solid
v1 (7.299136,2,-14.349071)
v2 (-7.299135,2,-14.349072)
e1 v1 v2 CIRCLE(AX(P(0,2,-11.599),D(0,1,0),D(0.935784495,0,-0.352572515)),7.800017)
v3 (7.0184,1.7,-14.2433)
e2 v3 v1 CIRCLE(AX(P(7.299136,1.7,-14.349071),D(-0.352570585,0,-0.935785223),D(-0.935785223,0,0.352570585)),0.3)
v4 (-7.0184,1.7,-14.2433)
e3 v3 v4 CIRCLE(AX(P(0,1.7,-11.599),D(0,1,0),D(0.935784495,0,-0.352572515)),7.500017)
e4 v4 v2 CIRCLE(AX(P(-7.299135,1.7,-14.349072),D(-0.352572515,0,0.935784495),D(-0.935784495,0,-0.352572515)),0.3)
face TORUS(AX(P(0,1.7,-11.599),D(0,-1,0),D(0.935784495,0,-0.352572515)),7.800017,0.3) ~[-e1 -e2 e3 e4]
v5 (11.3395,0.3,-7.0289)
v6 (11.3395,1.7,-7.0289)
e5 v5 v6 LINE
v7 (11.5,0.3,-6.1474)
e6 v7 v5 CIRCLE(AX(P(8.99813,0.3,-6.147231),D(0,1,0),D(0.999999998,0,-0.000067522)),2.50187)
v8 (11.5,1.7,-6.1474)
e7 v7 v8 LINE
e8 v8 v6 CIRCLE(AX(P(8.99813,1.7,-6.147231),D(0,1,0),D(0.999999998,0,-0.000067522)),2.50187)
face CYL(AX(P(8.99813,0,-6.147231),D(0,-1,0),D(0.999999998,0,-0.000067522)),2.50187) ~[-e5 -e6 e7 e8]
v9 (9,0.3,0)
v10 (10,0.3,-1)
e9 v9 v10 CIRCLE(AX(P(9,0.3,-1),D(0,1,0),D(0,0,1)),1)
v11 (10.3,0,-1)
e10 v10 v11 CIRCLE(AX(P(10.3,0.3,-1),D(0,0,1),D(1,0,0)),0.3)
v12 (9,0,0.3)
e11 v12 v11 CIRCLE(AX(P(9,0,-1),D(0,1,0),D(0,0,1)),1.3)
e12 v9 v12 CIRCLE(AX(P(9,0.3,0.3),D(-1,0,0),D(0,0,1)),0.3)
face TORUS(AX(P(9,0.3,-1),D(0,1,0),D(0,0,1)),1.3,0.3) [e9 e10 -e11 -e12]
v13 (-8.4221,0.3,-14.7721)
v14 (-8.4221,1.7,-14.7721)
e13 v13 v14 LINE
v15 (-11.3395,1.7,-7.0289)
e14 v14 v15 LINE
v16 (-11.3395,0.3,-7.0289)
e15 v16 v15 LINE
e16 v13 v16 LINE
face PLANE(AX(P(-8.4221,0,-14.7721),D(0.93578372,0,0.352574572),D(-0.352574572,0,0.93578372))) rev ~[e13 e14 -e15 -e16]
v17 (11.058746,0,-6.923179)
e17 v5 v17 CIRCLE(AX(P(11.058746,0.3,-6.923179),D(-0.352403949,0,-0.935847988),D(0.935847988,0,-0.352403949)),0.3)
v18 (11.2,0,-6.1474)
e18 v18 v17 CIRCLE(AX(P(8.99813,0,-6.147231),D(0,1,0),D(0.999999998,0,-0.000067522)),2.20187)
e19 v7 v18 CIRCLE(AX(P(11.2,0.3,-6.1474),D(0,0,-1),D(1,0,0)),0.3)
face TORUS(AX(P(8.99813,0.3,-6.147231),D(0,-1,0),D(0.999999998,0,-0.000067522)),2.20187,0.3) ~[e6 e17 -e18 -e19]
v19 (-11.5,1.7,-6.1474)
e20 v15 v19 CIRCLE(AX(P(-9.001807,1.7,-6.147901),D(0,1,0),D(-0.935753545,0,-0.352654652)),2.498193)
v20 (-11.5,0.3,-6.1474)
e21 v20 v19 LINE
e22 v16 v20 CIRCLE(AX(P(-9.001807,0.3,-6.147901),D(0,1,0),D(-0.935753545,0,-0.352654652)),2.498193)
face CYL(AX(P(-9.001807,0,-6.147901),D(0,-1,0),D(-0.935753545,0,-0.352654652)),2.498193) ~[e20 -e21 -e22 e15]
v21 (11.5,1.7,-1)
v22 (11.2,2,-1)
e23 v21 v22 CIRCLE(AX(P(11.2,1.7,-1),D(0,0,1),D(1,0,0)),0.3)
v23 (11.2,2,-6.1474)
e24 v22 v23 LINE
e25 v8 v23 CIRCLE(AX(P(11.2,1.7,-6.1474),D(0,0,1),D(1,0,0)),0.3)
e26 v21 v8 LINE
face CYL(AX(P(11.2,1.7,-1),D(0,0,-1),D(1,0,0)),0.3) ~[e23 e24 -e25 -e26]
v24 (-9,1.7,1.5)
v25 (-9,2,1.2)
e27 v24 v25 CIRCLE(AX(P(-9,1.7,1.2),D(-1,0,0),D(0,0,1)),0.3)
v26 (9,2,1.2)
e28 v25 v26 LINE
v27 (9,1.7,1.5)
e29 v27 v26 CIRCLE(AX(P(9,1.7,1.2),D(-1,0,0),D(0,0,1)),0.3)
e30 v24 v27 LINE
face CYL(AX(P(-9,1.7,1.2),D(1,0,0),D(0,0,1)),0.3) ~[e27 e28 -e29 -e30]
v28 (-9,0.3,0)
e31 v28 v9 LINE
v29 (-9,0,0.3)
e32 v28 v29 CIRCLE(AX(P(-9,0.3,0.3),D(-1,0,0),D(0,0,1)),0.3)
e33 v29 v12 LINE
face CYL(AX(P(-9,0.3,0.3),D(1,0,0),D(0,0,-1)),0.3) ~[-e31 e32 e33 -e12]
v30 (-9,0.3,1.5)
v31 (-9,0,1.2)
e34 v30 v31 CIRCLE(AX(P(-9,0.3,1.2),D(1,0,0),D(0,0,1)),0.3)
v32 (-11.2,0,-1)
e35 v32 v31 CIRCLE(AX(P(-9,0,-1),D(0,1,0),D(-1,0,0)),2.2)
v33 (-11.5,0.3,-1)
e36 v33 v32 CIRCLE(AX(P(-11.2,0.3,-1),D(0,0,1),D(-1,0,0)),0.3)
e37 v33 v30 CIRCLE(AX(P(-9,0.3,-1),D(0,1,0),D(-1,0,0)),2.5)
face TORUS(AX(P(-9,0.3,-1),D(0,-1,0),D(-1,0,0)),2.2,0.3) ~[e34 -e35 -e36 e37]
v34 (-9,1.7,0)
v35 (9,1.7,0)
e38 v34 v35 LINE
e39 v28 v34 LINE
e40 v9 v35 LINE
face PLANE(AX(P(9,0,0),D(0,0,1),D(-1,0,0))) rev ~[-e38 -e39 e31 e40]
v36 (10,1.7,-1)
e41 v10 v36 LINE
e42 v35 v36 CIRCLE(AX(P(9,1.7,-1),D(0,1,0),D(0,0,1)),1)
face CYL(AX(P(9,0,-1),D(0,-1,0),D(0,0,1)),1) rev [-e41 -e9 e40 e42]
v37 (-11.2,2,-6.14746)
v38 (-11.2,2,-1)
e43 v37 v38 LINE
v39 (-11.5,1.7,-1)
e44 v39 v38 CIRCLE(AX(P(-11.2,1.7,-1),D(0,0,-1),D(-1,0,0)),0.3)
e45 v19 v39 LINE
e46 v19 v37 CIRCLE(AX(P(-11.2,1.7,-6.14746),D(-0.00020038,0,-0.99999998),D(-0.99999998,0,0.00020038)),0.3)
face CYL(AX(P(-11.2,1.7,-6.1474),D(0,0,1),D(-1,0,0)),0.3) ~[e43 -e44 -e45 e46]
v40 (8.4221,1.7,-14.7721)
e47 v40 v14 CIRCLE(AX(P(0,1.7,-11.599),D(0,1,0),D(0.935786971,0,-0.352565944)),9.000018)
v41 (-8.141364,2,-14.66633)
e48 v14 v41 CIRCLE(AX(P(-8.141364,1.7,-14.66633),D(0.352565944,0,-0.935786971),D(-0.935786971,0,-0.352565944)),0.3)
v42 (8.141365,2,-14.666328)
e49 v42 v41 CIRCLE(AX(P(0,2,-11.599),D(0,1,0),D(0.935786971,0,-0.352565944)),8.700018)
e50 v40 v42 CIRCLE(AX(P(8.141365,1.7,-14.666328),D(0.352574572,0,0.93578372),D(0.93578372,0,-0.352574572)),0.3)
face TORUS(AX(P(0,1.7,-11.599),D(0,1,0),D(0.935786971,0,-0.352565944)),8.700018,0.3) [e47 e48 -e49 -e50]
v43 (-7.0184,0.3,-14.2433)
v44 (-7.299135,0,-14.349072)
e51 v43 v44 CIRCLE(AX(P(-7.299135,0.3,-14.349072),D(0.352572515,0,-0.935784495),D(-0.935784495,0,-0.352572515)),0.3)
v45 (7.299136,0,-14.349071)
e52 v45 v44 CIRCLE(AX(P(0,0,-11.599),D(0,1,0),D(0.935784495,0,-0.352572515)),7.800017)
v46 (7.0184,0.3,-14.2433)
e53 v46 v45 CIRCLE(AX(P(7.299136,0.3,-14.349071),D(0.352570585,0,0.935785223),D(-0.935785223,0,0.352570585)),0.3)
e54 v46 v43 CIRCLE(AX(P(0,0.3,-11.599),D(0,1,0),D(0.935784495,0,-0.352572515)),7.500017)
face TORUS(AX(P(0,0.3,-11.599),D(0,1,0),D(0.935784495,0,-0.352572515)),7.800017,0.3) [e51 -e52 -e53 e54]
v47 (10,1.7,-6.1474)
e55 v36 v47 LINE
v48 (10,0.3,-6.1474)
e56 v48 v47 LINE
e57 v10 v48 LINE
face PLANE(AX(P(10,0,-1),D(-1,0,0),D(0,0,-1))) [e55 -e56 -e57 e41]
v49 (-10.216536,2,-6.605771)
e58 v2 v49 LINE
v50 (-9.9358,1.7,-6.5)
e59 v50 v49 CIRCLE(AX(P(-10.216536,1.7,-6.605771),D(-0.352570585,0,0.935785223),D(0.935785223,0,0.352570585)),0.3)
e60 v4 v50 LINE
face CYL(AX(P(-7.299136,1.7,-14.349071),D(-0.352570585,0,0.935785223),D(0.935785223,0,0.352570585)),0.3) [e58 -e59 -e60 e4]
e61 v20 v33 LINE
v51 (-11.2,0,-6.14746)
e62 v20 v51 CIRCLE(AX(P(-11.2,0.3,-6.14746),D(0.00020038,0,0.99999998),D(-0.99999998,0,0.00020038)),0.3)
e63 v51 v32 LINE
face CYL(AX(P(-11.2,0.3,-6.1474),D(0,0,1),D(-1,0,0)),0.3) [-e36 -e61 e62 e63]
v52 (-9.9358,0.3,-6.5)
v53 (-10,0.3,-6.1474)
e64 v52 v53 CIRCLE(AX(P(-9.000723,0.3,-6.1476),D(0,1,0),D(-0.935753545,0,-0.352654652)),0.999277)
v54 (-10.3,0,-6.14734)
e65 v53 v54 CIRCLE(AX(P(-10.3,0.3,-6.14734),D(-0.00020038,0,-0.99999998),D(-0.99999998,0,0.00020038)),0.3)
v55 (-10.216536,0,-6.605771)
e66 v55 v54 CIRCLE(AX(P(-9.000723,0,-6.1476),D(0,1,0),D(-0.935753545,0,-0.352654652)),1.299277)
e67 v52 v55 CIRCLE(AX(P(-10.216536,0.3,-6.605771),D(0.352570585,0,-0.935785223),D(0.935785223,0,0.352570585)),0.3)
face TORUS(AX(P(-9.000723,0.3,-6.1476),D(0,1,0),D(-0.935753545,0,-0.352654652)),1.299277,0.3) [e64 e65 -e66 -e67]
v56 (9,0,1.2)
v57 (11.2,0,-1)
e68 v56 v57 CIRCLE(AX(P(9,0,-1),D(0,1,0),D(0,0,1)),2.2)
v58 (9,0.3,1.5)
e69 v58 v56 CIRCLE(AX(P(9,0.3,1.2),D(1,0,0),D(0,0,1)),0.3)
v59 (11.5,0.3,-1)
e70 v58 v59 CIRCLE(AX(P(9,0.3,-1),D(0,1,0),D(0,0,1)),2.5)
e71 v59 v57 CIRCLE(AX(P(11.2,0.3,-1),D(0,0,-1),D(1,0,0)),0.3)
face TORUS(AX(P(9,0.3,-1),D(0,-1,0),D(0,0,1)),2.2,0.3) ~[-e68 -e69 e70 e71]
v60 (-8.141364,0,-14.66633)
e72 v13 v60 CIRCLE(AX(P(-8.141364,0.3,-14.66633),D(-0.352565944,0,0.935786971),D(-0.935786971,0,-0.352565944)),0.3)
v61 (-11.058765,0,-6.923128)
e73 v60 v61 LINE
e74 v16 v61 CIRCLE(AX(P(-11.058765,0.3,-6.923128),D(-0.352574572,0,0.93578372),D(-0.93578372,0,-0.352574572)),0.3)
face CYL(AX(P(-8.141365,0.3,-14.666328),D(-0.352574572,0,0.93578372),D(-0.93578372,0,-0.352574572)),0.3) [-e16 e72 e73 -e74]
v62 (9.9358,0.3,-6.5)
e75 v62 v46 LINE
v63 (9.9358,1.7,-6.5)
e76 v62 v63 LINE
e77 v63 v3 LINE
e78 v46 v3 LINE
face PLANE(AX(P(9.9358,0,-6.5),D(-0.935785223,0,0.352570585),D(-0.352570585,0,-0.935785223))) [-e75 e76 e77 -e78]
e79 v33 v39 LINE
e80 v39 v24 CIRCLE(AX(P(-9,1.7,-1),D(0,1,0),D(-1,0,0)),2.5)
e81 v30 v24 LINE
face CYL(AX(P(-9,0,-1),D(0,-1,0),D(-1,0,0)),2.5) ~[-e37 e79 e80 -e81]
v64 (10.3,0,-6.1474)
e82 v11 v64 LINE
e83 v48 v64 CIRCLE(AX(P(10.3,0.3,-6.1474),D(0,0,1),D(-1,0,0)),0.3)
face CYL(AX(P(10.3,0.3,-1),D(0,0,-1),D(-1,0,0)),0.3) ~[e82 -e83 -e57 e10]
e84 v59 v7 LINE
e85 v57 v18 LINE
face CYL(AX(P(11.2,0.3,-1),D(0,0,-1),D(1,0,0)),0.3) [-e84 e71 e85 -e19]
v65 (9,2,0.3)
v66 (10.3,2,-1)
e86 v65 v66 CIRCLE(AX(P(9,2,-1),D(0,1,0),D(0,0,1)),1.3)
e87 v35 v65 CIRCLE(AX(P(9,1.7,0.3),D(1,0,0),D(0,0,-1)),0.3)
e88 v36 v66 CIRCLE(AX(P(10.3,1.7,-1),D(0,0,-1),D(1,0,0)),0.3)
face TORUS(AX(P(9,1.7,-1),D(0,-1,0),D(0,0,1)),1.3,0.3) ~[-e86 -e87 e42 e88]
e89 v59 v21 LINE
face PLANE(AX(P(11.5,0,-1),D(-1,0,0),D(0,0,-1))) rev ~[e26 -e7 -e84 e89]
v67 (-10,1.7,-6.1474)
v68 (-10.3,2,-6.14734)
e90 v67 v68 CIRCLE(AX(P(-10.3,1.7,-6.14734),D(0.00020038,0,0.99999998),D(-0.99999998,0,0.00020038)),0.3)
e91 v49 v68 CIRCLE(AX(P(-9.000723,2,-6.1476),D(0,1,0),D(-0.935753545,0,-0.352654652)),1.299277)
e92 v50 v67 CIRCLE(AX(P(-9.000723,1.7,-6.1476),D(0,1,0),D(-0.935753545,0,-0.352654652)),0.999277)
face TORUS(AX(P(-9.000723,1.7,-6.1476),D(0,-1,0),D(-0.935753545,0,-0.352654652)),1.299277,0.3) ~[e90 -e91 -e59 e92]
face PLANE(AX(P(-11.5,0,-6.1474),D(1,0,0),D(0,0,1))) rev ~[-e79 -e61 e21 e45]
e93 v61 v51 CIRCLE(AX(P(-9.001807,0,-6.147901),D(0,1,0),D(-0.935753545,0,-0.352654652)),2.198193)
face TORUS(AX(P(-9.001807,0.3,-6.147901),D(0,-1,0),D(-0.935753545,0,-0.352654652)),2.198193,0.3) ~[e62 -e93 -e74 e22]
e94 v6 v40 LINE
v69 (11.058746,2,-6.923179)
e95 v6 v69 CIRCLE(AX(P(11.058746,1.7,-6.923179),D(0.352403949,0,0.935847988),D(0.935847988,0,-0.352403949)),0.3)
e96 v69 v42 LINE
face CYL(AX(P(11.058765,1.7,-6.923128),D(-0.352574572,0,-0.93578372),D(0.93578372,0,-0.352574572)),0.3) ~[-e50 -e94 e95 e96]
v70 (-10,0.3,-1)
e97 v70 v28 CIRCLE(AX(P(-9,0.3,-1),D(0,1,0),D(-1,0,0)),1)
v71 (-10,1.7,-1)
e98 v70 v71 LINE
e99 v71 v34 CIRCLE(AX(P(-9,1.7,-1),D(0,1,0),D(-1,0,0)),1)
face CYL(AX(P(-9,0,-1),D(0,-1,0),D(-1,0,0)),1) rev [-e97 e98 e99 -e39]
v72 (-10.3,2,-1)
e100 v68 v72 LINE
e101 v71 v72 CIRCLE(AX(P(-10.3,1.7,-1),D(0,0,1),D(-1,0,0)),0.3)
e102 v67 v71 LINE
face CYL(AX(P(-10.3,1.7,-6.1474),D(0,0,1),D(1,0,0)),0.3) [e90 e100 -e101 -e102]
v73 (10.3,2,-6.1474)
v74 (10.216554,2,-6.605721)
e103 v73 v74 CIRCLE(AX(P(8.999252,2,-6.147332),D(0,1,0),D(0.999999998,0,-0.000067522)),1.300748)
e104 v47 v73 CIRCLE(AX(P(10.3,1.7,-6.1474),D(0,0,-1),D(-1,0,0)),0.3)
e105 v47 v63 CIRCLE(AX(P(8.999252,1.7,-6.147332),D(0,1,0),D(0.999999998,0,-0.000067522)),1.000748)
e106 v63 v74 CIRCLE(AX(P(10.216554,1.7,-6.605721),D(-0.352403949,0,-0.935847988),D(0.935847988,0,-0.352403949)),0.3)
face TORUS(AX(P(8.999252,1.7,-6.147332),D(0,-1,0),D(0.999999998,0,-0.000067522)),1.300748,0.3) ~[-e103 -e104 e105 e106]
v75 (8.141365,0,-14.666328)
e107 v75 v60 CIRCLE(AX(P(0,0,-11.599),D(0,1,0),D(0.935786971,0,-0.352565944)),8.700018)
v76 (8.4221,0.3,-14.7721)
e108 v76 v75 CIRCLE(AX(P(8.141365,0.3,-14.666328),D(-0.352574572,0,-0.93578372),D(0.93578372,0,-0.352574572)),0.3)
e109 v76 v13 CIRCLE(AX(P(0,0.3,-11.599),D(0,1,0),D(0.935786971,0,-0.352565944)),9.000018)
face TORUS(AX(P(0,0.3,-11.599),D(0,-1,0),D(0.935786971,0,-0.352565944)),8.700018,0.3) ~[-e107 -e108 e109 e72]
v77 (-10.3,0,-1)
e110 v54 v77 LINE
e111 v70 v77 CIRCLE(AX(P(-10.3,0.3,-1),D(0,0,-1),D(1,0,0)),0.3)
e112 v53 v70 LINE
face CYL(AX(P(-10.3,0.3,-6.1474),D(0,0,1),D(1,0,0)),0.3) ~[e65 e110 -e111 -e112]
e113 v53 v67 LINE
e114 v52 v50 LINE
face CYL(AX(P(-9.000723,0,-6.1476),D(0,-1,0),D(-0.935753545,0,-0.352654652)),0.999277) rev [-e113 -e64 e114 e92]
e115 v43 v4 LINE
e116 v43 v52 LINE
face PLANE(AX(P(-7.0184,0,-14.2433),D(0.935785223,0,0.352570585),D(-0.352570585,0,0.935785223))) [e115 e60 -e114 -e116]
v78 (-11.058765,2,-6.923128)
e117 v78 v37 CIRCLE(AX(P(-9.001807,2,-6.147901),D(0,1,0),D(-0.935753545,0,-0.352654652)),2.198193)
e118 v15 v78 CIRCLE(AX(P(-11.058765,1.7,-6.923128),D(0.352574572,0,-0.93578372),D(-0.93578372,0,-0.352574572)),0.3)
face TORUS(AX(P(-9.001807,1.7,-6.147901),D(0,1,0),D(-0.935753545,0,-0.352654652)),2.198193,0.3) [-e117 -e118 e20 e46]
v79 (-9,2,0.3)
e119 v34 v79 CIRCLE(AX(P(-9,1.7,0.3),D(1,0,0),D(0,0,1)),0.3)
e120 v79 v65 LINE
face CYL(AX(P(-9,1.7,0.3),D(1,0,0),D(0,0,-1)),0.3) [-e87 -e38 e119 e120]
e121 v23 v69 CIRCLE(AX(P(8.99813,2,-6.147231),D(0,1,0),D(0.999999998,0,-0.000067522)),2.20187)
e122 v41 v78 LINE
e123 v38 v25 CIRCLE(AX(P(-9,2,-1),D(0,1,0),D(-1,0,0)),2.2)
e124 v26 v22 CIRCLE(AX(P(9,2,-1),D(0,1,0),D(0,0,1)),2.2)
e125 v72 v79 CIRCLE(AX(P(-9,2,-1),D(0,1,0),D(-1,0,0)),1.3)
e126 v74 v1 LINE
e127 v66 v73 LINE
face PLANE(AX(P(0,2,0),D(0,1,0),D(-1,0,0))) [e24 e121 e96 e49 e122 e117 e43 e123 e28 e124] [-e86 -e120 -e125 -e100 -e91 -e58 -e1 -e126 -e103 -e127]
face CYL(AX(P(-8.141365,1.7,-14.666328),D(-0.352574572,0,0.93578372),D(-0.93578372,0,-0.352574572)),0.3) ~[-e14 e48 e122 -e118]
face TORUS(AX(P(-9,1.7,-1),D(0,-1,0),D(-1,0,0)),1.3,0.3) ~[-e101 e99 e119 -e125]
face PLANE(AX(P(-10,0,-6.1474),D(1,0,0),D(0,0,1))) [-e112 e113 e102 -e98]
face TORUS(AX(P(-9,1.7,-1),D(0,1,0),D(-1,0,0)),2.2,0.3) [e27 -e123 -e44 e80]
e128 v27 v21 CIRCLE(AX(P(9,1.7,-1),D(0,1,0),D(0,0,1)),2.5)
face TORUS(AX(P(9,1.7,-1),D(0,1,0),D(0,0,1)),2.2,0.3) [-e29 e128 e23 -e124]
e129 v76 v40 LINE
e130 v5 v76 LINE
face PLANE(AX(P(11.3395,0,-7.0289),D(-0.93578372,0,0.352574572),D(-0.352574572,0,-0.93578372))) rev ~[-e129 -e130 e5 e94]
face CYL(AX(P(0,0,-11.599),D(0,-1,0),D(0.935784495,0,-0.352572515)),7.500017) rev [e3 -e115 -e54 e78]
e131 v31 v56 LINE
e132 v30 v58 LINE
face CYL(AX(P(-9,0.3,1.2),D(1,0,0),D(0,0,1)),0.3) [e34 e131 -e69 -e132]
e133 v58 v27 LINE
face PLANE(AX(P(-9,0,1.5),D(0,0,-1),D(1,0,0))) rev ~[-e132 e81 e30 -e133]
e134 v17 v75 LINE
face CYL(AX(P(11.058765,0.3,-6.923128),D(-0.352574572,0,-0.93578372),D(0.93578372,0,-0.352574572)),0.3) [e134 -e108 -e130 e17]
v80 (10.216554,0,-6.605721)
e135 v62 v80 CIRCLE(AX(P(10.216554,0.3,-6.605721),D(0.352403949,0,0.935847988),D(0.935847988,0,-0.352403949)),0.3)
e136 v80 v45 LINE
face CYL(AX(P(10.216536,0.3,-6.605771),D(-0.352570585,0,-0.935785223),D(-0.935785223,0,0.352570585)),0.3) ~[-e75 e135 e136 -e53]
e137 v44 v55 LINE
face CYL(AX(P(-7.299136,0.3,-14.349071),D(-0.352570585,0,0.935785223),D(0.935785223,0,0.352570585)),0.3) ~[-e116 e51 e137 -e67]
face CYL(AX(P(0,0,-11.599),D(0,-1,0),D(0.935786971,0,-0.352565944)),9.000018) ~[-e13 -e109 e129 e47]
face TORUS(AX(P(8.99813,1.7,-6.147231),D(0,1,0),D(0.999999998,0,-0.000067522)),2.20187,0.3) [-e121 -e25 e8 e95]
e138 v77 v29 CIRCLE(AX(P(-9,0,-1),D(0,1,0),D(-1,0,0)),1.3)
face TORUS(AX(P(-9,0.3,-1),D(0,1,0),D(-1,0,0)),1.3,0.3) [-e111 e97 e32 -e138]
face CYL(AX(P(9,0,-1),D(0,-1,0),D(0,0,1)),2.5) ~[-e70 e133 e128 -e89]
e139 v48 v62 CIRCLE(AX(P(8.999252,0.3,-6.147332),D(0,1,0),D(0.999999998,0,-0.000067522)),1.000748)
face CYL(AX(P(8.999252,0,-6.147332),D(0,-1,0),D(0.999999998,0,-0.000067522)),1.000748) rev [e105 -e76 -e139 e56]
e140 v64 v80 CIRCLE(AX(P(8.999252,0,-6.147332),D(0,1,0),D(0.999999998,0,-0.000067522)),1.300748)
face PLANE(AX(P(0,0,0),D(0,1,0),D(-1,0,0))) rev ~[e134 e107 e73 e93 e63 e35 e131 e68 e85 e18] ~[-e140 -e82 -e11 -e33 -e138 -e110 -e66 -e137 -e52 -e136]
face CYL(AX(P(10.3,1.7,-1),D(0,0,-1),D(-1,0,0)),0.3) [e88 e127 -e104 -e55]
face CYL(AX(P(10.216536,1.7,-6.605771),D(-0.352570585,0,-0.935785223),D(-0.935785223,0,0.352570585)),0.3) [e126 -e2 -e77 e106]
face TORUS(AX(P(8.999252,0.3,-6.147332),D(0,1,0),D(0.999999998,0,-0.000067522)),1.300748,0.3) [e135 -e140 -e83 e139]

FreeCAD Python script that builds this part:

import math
import FreeCAD as App
import Part
import Sketcher
Q = App.Units.Quantity


def edges_at(feature, points):
    """Names of the edges that pass closest to the given points."""
    edges = feature.Shape.Edges
    near = lambda p: min(range(len(edges)), key=lambda i: edges[i].distToShape(Part.Vertex(*p))[0])
    return sorted({f"Edge{near(p) + 1}" for p in points})

doc = App.newDocument("Part")
body = doc.addObject("PartDesign::Body", "Body")

sketch1 = body.newObject("Sketcher::SketchObject", "Sketch")
sketch1.AttachmentSupport = (doc.getObject("XZ_Plane"), [""])
sketch1.MapMode = "FlatFace"
sketch1.addGeometry([
    Part.ArcOfCircle(Part.Circle(App.Vector(-9, -1, 0), App.Vector(0, 0, 1), 2.5), math.radians(90), math.radians(180)),
    Part.LineSegment(App.Vector(-9, 1.5, 0), App.Vector(9, 1.5, 0)),
    Part.ArcOfCircle(Part.Circle(App.Vector(9, -1, 0), App.Vector(0, 0, 1), 2.5), math.radians(0), math.radians(90)),
    Part.LineSegment(App.Vector(11.5, -1, 0), App.Vector(11.5, -6.1474, 0)),
    Part.ArcOfCircle(Part.Circle(App.Vector(8.99813, -6.147231, 0), App.Vector(0, 0, 1), 2.50187), math.radians(-20.634422), math.radians(-0.003869)),
    Part.LineSegment(App.Vector(11.3395, -7.0289, 0), App.Vector(8.4221, -14.7721, 0)),
    Part.ArcOfCircle(Part.Circle(App.Vector(0, -11.599, 0), App.Vector(0, 0, 1), 9.000018), math.radians(-159.35566), math.radians(-20.64434)),
    Part.LineSegment(App.Vector(-8.4221, -14.7721, 0), App.Vector(-11.3395, -7.0289, 0)),
    Part.ArcOfCircle(Part.Circle(App.Vector(-9.001807, -6.147901, 0), App.Vector(0, 0, 1), 2.498193), math.radians(179.988519), math.radians(200.649772)),
    Part.LineSegment(App.Vector(-11.5, -6.1474, 0), App.Vector(-11.5, -1, 0)),
    Part.ArcOfCircle(Part.Circle(App.Vector(9, -1, 0), App.Vector(0, 0, 1), 1), math.radians(0), math.radians(90)),
    Part.LineSegment(App.Vector(9, 0, 0), App.Vector(-9, 0, 0)),
    Part.ArcOfCircle(Part.Circle(App.Vector(-9, -1, 0), App.Vector(0, 0, 1), 1), math.radians(90), math.radians(180)),
    Part.LineSegment(App.Vector(-10, -1, 0), App.Vector(-10, -6.1474, 0)),
    Part.ArcOfCircle(Part.Circle(App.Vector(-9, -6.1474, 0), App.Vector(0, 0, 1), 1.000024), math.radians(180), math.radians(200.645903)),
    Part.LineSegment(App.Vector(-9.9358, -6.5, 0), App.Vector(-7.0184, -14.2433, 0)),
    Part.ArcOfCircle(Part.Circle(App.Vector(0, -11.599, 0), App.Vector(0, 0, 1), 7.500017), math.radians(-159.355257), math.radians(-20.644743)),
    Part.LineSegment(App.Vector(7.0184, -14.2433, 0), App.Vector(9.9358, -6.5, 0)),
    Part.ArcOfCircle(Part.Circle(App.Vector(9, -6.1474, 0), App.Vector(0, 0, 1), 1), math.radians(-20.645903), math.radians(0)),
    Part.LineSegment(App.Vector(10, -6.1474, 0), App.Vector(10, -1, 0)),
], False)
sketch1.addConstraint([
    Sketcher.Constraint("Tangent", 0, 1, 1, 1),
    Sketcher.Constraint("Tangent", 1, 2, 2, 2),
    Sketcher.Constraint("Tangent", 2, 1, 3, 1),
    Sketcher.Constraint("Tangent", 3, 2, 4, 2),
    Sketcher.Constraint("Tangent", 4, 1, 5, 1),
    Sketcher.Constraint("Tangent", 5, 2, 6, 2),
    Sketcher.Constraint("Tangent", 6, 1, 7, 1),
    Sketcher.Constraint("Tangent", 7, 2, 8, 2),
    Sketcher.Constraint("Tangent", 8, 1, 9, 1),
    Sketcher.Constraint("Tangent", 9, 2, 0, 2),
    Sketcher.Constraint("Tangent", 10, 2, 11, 1),
    Sketcher.Constraint("Tangent", 11, 2, 12, 1),
    Sketcher.Constraint("Tangent", 12, 2, 13, 1),
    Sketcher.Constraint("Tangent", 13, 2, 14, 1),
    Sketcher.Constraint("Tangent", 14, 2, 15, 1),
    Sketcher.Constraint("Tangent", 15, 2, 16, 1),
    Sketcher.Constraint("Tangent", 16, 2, 17, 1),
    Sketcher.Constraint("Tangent", 17, 2, 18, 1),
    Sketcher.Constraint("Tangent", 18, 2, 19, 1),
    Sketcher.Constraint("Tangent", 19, 2, 10, 1),
    Sketcher.Constraint("Horizontal", 1),
    Sketcher.Constraint("Vertical", 3),
    Sketcher.Constraint("Vertical", 9),
    Sketcher.Constraint("Horizontal", 11),
    Sketcher.Constraint("Vertical", 13),
    Sketcher.Constraint("Vertical", 19),
    Sketcher.Constraint("Coincident", 10, 3, 2, 3),
    Sketcher.Constraint("Coincident", 12, 3, 0, 3),
    Sketcher.Constraint("Coincident", 16, 3, 6, 3),
    Sketcher.Constraint("Equal", 0, 2),
    Sketcher.Constraint("Equal", 12, 14),
    Sketcher.Constraint("Equal", 14, 18),
    Sketcher.Constraint("Symmetric", 10, 2, 11, 2, -1, 1),
    Sketcher.Constraint("Symmetric", 5, 2, 6, 1, -2),
    Sketcher.Constraint("Parallel", 7, 15),
    Sketcher.Constraint("Parallel", 5, 17),
    Sketcher.Constraint("Horizontal", 4, 3, 14, 3),
    Sketcher.Constraint("Horizontal", 4, 1, 7, 2),
    Sketcher.Constraint("Equal", 7, 15),
    Sketcher.Constraint("Radius", 6, Q("9 mm")),
    Sketcher.Constraint("Radius", 10, Q("1 mm")),
    Sketcher.Constraint("Radius", 16, Q("7.5 mm")),
    Sketcher.Constraint("DistanceX", 1, 1, 1, 2, Q("18 mm")),
    Sketcher.Constraint("DistanceY", 14, 2, -1, 1, Q("6.5 mm")),
    Sketcher.Constraint("DistanceY", 6, 3, -1, 1, Q("11.599 mm")),
])
pad1 = body.newObject("PartDesign::Pad", "Pad")
pad1.Profile = sketch1
pad1.Length = 2
pad1.Reversed = True
doc.recompute()

fillet = body.newObject("PartDesign::Fillet", "Fillet")
fillet.Base = (pad1, edges_at(pad1, [
    (10.768, 2, 0.768),
    (11.5, 2, -3.574),
    (11.46, 2, -6.595),
    (9.881, 2, -10.9),
    (0, 2, -20.599),
    (-9.881, 2, -10.9),
    (-11.46, 2, -6.595),
    (-11.5, 2, -3.574),
    (-10.768, 2, 0.768),
    (0, 2, 1.5),
    (10.768, 0, 0.768),
    (11.5, 0, -3.574),
    (11.46, 0, -6.595),
    (9.881, 0, -10.9),
    (0, 0, -20.599),
    (-9.881, 0, -10.9),
    (-11.46, 0, -6.595),
    (-11.5, 0, -3.574),
    (-10.768, 0, 0.768),
    (0, 0, 1.5),
    (-9.707, 2, -0.293),
    (-10, 2, -3.574),
    (-9.984, 2, -6.327),
    (-8.477, 2, -10.372),
    (0, 2, -19.099),
    (8.477, 2, -10.372),
    (9.984, 2, -6.327),
    (10, 2, -3.574),
    (9.707, 2, -0.293),
    (0, 2, 0),
    (9.707, 0, -0.293),
    (10, 0, -3.574),
    (9.984, 0, -6.327),
    (8.477, 0, -10.372),
    (0, 0, -19.099),
    (-8.477, 0, -10.372),
    (-9.984, 0, -6.327),
    (-10, 0, -3.574),
    (-9.707, 0, -0.293),
    (0, 0, 0),
]))
fillet.Radius = 0.3

doc.recompute()
